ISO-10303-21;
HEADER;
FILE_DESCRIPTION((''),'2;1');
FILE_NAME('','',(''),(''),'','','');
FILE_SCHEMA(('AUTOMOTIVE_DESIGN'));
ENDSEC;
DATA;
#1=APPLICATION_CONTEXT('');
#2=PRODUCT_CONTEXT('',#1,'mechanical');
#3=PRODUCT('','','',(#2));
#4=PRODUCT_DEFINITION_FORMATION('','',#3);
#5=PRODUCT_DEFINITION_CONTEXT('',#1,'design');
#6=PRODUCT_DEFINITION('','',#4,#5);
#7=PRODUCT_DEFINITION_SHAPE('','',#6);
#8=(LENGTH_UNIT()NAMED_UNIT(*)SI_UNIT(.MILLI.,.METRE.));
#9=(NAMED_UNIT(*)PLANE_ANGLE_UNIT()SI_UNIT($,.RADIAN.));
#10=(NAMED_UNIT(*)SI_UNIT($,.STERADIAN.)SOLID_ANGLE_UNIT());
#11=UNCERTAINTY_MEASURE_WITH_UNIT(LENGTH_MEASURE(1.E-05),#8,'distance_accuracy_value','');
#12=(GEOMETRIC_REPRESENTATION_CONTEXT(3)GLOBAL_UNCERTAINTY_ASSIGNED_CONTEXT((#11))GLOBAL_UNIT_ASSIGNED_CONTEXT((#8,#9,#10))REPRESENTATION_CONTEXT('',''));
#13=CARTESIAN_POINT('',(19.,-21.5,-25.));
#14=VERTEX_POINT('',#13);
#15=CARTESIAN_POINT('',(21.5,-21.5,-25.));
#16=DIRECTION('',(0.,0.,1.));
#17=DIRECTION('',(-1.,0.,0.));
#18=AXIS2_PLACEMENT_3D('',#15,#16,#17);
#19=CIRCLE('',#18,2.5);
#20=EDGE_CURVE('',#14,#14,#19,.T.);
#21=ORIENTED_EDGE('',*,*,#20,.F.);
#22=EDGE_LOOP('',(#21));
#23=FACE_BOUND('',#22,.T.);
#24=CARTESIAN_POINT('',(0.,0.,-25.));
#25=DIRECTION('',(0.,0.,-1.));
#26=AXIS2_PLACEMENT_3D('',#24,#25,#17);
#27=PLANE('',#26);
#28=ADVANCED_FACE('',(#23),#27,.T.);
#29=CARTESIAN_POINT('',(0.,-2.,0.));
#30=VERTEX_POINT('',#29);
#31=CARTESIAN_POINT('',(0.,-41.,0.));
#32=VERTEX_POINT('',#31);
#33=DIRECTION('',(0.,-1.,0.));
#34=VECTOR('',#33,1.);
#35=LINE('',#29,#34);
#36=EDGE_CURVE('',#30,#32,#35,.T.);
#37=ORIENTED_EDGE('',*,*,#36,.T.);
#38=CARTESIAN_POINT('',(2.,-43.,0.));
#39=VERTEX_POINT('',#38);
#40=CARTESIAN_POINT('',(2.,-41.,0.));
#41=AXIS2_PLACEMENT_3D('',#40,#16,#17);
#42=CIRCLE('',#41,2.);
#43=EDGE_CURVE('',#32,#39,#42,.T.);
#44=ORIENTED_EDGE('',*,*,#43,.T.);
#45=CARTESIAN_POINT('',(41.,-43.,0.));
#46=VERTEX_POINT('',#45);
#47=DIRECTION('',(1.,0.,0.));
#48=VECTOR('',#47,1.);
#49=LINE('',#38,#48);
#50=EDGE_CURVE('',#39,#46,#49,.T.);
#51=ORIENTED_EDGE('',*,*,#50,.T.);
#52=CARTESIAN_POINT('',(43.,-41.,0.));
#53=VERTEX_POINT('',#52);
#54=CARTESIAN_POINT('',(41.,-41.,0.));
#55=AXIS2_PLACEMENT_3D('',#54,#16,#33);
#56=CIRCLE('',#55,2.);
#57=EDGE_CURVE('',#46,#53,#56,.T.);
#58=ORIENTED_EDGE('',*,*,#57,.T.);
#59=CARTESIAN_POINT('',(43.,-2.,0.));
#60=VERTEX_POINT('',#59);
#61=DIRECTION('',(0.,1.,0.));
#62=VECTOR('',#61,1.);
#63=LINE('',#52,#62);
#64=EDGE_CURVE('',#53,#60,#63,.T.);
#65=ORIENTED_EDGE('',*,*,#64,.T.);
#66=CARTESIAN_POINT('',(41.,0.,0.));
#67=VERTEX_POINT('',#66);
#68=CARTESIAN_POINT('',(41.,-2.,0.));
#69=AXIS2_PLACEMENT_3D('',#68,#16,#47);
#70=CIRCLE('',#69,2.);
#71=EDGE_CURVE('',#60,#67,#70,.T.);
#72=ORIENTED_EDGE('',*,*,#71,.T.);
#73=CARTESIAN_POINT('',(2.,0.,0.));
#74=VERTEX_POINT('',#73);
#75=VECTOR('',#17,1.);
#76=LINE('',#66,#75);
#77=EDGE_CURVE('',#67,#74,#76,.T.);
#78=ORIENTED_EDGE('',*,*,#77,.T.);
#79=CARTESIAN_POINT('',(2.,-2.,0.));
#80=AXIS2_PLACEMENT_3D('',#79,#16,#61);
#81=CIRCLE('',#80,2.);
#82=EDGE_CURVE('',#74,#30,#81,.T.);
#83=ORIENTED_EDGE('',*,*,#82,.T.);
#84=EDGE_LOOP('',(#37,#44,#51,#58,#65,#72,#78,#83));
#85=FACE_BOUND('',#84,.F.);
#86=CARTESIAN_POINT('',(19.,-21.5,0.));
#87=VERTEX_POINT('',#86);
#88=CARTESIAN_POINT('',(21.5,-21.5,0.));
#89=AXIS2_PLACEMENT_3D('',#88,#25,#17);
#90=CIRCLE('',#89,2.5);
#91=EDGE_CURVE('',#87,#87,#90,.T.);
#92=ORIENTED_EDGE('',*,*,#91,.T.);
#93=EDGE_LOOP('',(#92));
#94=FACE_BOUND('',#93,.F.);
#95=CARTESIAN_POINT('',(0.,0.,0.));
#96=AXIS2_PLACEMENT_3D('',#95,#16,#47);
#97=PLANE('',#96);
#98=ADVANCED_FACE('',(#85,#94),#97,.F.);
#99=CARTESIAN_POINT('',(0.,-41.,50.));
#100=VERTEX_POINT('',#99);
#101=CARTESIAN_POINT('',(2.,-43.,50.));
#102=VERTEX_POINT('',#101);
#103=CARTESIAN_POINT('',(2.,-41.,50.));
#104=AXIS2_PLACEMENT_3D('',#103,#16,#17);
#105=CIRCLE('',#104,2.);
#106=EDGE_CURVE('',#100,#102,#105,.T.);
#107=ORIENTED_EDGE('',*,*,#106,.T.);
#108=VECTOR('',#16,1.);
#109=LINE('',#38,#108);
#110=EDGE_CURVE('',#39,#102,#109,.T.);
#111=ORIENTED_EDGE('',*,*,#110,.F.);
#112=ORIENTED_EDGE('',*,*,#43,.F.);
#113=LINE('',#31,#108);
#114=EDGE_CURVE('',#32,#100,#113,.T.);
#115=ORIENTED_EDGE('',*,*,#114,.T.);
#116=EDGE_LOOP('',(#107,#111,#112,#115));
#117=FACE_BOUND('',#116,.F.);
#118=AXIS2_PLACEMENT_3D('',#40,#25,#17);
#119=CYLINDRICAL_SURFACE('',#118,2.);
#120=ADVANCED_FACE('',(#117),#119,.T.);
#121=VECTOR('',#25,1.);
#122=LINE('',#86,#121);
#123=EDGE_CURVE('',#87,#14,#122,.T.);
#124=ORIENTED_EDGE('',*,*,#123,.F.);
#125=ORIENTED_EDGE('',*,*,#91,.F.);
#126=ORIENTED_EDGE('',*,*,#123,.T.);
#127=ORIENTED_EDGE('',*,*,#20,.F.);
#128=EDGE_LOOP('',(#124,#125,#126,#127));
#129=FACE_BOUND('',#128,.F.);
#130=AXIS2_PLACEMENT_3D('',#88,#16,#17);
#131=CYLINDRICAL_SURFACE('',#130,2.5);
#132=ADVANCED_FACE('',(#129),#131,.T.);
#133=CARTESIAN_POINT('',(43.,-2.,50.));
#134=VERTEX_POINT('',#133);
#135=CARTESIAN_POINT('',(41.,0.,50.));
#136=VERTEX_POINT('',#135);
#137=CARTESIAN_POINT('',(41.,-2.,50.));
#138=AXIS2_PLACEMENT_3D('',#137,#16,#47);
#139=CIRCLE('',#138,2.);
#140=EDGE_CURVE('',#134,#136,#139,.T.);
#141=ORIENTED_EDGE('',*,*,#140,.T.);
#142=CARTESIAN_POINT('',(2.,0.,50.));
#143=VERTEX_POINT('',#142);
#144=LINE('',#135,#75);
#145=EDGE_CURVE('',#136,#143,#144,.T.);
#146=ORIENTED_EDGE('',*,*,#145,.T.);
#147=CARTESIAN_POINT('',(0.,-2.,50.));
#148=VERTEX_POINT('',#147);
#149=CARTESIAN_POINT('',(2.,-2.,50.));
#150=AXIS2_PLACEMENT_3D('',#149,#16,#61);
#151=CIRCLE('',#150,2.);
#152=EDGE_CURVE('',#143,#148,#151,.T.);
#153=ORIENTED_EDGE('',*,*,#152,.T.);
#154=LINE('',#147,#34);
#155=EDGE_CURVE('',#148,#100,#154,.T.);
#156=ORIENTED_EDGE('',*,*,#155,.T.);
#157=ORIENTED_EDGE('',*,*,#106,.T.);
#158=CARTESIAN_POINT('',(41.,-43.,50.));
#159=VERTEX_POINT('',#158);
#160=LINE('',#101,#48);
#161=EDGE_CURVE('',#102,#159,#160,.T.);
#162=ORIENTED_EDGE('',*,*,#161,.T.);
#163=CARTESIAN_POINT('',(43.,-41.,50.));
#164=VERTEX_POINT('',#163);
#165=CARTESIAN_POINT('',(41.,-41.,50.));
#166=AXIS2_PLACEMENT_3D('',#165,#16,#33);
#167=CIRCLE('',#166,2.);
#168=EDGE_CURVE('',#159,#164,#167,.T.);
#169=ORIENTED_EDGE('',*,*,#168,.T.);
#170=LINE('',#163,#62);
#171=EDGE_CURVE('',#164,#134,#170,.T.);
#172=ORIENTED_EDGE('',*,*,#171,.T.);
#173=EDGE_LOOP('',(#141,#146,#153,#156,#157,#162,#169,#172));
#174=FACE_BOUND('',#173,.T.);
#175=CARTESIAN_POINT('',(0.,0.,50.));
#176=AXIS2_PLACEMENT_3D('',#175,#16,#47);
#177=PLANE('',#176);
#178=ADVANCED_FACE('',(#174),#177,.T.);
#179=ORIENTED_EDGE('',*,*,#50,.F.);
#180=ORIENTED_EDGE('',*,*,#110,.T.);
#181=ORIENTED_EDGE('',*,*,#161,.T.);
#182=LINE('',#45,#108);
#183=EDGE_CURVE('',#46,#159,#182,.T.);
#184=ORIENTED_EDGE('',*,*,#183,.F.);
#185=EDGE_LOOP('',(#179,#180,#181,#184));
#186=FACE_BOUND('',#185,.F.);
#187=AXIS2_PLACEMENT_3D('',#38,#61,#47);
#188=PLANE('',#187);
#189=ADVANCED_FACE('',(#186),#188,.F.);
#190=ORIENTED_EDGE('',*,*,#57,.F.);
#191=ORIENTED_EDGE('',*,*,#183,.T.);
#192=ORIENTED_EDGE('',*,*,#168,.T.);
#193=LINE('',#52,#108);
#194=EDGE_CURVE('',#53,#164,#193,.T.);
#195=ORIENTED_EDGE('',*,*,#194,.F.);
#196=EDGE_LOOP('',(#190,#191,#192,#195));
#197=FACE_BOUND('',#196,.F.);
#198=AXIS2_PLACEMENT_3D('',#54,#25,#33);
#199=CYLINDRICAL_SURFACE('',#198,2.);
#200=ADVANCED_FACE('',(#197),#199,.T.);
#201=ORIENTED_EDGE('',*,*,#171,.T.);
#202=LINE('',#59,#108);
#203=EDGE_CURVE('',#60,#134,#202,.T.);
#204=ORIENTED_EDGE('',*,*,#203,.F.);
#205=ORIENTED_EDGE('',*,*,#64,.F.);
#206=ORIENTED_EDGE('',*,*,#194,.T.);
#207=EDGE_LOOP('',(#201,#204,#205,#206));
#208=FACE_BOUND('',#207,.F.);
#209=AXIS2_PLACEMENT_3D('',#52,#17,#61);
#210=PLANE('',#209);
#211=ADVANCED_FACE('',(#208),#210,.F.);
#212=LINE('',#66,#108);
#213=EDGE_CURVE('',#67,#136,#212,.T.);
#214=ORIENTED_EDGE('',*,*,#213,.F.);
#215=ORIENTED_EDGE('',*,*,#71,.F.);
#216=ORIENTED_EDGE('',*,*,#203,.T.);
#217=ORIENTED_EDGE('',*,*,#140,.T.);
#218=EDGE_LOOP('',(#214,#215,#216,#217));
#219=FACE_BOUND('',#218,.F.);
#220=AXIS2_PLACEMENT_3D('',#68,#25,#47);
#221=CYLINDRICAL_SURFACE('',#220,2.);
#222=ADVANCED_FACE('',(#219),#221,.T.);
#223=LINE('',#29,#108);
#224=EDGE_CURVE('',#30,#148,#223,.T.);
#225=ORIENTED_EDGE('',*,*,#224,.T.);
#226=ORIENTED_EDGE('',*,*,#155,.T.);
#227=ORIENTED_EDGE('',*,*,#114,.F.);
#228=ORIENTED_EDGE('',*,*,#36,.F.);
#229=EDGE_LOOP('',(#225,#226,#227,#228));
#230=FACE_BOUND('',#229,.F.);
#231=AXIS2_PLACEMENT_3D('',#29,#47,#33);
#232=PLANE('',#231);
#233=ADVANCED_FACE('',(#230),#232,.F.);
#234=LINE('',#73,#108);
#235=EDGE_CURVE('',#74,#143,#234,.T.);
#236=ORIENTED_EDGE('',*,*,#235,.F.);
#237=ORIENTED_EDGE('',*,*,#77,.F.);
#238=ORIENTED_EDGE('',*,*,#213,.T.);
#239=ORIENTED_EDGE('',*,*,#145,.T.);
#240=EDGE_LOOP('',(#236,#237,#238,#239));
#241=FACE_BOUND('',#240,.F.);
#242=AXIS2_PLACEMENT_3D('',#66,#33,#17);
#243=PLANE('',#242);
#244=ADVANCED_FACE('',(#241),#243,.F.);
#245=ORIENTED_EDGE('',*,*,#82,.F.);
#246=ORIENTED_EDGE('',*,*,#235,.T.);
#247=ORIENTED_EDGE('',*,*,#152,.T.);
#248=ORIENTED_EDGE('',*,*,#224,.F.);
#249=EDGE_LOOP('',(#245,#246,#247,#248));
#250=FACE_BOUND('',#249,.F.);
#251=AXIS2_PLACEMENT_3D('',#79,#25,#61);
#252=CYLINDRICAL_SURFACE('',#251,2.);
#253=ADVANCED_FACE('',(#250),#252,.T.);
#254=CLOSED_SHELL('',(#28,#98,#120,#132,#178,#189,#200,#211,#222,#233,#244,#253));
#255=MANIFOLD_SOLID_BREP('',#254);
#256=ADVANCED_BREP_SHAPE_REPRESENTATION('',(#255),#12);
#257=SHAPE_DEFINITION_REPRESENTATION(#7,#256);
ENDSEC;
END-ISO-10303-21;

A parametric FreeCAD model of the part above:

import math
import FreeCAD as App
import Part
import Sketcher
from FreeCAD import Vector
Q = App.Units.Quantity

doc = App.newDocument("Part")
body = doc.addObject("PartDesign::Body", "Body")

# Sketch on XY plane
sketch1 = body.newObject("Sketcher::SketchObject", "Sketch")
sketch1.AttachmentSupport = (doc.getObject("XY_Plane"), [""])
sketch1.MapMode = "FlatFace"
sketch1.addGeometry(Part.ArcOfCircle(Part.Circle(Vector(2, -2, 0), Vector(0, 0, 1), 2), math.radians(90), math.radians(180)), False)
sketch1.addGeometry(Part.LineSegment(Vector(0, -2, 0), Vector(0, -41, 0)), False)
sketch1.addGeometry(Part.ArcOfCircle(Part.Circle(Vector(2, -41, 0), Vector(0, 0, 1), 2), math.radians(180), math.radians(270)), False)
sketch1.addGeometry(Part.LineSegment(Vector(2, -43, 0), Vector(41, -43, 0)), False)
sketch1.addGeometry(Part.ArcOfCircle(Part.Circle(Vector(41, -41, 0), Vector(0, 0, 1), 2), math.radians(-90), math.radians(0)), False)
sketch1.addGeometry(Part.LineSegment(Vector(43, -41, 0), Vector(43, -2, 0)), False)
sketch1.addGeometry(Part.ArcOfCircle(Part.Circle(Vector(41, -2, 0), Vector(0, 0, 1), 2), math.radians(0), math.radians(90)), False)
sketch1.addGeometry(Part.LineSegment(Vector(41, 0, 0), Vector(2, 0, 0)), False)
sketch1.addConstraint(Sketcher.Constraint("Tangent", 0, 2, 1, 1))
sketch1.addConstraint(Sketcher.Constraint("Tangent", 1, 2, 2, 1))
sketch1.addConstraint(Sketcher.Constraint("Tangent", 2, 2, 3, 1))
sketch1.addConstraint(Sketcher.Constraint("Tangent", 3, 2, 4, 1))
sketch1.addConstraint(Sketcher.Constraint("Tangent", 4, 2, 5, 1))
sketch1.addConstraint(Sketcher.Constraint("Tangent", 5, 2, 6, 1))
sketch1.addConstraint(Sketcher.Constraint("Tangent", 6, 2, 7, 1))
sketch1.addConstraint(Sketcher.Constraint("Tangent", 7, 2, 0, 1))
sketch1.addConstraint(Sketcher.Constraint("Vertical", 1))
sketch1.addConstraint(Sketcher.Constraint("Horizontal", 3))
sketch1.addConstraint(Sketcher.Constraint("Vertical", 5))
sketch1.addConstraint(Sketcher.Constraint("Horizontal", 7))
sketch1.addConstraint(Sketcher.Constraint("Equal", 0, 2))
sketch1.addConstraint(Sketcher.Constraint("Equal", 2, 4))
sketch1.addConstraint(Sketcher.Constraint("Equal", 4, 6))
sketch1.addConstraint(Sketcher.Constraint("PointOnObject", 0, 2, -2))
sketch1.addConstraint(Sketcher.Constraint("PointOnObject", 6, 2, -1))
sketch1.addConstraint(Sketcher.Constraint("Equal", 7, 1))
sketch1.addConstraint(Sketcher.Constraint("Radius", 0, Q("2 mm")))
sketch1.addConstraint(Sketcher.Constraint("DistanceY", 2, 2, -1, 1, Q("43 mm")))
pad1 = body.newObject("PartDesign::Pad", "Pad")
pad1.Profile = sketch1
pad1.Length = 50

# Sketch on XY plane
sketch2 = body.newObject("Sketcher::SketchObject", "Sketch001")
sketch2.AttachmentSupport = (doc.getObject("XY_Plane"), [""])
sketch2.MapMode = "FlatFace"
sketch2.addGeometry(Part.Circle(Vector(21.5, -21.5, 0), Vector(0, 0, 1), 2.5), False)
sketch2.addConstraint(Sketcher.Constraint("Diameter", 0, Q("5 mm")))
sketch2.addConstraint(Sketcher.Constraint("DistanceX", -1, 1, 0, 3, Q("21.5 mm")))
sketch2.addConstraint(Sketcher.Constraint("DistanceY", 0, 3, -1, 1, Q("21.5 mm")))
pad2 = body.newObject("PartDesign::Pad", "Pad001")
pad2.Profile = sketch2
pad2.Length = 25
pad2.Reversed = True

doc.recompute()
